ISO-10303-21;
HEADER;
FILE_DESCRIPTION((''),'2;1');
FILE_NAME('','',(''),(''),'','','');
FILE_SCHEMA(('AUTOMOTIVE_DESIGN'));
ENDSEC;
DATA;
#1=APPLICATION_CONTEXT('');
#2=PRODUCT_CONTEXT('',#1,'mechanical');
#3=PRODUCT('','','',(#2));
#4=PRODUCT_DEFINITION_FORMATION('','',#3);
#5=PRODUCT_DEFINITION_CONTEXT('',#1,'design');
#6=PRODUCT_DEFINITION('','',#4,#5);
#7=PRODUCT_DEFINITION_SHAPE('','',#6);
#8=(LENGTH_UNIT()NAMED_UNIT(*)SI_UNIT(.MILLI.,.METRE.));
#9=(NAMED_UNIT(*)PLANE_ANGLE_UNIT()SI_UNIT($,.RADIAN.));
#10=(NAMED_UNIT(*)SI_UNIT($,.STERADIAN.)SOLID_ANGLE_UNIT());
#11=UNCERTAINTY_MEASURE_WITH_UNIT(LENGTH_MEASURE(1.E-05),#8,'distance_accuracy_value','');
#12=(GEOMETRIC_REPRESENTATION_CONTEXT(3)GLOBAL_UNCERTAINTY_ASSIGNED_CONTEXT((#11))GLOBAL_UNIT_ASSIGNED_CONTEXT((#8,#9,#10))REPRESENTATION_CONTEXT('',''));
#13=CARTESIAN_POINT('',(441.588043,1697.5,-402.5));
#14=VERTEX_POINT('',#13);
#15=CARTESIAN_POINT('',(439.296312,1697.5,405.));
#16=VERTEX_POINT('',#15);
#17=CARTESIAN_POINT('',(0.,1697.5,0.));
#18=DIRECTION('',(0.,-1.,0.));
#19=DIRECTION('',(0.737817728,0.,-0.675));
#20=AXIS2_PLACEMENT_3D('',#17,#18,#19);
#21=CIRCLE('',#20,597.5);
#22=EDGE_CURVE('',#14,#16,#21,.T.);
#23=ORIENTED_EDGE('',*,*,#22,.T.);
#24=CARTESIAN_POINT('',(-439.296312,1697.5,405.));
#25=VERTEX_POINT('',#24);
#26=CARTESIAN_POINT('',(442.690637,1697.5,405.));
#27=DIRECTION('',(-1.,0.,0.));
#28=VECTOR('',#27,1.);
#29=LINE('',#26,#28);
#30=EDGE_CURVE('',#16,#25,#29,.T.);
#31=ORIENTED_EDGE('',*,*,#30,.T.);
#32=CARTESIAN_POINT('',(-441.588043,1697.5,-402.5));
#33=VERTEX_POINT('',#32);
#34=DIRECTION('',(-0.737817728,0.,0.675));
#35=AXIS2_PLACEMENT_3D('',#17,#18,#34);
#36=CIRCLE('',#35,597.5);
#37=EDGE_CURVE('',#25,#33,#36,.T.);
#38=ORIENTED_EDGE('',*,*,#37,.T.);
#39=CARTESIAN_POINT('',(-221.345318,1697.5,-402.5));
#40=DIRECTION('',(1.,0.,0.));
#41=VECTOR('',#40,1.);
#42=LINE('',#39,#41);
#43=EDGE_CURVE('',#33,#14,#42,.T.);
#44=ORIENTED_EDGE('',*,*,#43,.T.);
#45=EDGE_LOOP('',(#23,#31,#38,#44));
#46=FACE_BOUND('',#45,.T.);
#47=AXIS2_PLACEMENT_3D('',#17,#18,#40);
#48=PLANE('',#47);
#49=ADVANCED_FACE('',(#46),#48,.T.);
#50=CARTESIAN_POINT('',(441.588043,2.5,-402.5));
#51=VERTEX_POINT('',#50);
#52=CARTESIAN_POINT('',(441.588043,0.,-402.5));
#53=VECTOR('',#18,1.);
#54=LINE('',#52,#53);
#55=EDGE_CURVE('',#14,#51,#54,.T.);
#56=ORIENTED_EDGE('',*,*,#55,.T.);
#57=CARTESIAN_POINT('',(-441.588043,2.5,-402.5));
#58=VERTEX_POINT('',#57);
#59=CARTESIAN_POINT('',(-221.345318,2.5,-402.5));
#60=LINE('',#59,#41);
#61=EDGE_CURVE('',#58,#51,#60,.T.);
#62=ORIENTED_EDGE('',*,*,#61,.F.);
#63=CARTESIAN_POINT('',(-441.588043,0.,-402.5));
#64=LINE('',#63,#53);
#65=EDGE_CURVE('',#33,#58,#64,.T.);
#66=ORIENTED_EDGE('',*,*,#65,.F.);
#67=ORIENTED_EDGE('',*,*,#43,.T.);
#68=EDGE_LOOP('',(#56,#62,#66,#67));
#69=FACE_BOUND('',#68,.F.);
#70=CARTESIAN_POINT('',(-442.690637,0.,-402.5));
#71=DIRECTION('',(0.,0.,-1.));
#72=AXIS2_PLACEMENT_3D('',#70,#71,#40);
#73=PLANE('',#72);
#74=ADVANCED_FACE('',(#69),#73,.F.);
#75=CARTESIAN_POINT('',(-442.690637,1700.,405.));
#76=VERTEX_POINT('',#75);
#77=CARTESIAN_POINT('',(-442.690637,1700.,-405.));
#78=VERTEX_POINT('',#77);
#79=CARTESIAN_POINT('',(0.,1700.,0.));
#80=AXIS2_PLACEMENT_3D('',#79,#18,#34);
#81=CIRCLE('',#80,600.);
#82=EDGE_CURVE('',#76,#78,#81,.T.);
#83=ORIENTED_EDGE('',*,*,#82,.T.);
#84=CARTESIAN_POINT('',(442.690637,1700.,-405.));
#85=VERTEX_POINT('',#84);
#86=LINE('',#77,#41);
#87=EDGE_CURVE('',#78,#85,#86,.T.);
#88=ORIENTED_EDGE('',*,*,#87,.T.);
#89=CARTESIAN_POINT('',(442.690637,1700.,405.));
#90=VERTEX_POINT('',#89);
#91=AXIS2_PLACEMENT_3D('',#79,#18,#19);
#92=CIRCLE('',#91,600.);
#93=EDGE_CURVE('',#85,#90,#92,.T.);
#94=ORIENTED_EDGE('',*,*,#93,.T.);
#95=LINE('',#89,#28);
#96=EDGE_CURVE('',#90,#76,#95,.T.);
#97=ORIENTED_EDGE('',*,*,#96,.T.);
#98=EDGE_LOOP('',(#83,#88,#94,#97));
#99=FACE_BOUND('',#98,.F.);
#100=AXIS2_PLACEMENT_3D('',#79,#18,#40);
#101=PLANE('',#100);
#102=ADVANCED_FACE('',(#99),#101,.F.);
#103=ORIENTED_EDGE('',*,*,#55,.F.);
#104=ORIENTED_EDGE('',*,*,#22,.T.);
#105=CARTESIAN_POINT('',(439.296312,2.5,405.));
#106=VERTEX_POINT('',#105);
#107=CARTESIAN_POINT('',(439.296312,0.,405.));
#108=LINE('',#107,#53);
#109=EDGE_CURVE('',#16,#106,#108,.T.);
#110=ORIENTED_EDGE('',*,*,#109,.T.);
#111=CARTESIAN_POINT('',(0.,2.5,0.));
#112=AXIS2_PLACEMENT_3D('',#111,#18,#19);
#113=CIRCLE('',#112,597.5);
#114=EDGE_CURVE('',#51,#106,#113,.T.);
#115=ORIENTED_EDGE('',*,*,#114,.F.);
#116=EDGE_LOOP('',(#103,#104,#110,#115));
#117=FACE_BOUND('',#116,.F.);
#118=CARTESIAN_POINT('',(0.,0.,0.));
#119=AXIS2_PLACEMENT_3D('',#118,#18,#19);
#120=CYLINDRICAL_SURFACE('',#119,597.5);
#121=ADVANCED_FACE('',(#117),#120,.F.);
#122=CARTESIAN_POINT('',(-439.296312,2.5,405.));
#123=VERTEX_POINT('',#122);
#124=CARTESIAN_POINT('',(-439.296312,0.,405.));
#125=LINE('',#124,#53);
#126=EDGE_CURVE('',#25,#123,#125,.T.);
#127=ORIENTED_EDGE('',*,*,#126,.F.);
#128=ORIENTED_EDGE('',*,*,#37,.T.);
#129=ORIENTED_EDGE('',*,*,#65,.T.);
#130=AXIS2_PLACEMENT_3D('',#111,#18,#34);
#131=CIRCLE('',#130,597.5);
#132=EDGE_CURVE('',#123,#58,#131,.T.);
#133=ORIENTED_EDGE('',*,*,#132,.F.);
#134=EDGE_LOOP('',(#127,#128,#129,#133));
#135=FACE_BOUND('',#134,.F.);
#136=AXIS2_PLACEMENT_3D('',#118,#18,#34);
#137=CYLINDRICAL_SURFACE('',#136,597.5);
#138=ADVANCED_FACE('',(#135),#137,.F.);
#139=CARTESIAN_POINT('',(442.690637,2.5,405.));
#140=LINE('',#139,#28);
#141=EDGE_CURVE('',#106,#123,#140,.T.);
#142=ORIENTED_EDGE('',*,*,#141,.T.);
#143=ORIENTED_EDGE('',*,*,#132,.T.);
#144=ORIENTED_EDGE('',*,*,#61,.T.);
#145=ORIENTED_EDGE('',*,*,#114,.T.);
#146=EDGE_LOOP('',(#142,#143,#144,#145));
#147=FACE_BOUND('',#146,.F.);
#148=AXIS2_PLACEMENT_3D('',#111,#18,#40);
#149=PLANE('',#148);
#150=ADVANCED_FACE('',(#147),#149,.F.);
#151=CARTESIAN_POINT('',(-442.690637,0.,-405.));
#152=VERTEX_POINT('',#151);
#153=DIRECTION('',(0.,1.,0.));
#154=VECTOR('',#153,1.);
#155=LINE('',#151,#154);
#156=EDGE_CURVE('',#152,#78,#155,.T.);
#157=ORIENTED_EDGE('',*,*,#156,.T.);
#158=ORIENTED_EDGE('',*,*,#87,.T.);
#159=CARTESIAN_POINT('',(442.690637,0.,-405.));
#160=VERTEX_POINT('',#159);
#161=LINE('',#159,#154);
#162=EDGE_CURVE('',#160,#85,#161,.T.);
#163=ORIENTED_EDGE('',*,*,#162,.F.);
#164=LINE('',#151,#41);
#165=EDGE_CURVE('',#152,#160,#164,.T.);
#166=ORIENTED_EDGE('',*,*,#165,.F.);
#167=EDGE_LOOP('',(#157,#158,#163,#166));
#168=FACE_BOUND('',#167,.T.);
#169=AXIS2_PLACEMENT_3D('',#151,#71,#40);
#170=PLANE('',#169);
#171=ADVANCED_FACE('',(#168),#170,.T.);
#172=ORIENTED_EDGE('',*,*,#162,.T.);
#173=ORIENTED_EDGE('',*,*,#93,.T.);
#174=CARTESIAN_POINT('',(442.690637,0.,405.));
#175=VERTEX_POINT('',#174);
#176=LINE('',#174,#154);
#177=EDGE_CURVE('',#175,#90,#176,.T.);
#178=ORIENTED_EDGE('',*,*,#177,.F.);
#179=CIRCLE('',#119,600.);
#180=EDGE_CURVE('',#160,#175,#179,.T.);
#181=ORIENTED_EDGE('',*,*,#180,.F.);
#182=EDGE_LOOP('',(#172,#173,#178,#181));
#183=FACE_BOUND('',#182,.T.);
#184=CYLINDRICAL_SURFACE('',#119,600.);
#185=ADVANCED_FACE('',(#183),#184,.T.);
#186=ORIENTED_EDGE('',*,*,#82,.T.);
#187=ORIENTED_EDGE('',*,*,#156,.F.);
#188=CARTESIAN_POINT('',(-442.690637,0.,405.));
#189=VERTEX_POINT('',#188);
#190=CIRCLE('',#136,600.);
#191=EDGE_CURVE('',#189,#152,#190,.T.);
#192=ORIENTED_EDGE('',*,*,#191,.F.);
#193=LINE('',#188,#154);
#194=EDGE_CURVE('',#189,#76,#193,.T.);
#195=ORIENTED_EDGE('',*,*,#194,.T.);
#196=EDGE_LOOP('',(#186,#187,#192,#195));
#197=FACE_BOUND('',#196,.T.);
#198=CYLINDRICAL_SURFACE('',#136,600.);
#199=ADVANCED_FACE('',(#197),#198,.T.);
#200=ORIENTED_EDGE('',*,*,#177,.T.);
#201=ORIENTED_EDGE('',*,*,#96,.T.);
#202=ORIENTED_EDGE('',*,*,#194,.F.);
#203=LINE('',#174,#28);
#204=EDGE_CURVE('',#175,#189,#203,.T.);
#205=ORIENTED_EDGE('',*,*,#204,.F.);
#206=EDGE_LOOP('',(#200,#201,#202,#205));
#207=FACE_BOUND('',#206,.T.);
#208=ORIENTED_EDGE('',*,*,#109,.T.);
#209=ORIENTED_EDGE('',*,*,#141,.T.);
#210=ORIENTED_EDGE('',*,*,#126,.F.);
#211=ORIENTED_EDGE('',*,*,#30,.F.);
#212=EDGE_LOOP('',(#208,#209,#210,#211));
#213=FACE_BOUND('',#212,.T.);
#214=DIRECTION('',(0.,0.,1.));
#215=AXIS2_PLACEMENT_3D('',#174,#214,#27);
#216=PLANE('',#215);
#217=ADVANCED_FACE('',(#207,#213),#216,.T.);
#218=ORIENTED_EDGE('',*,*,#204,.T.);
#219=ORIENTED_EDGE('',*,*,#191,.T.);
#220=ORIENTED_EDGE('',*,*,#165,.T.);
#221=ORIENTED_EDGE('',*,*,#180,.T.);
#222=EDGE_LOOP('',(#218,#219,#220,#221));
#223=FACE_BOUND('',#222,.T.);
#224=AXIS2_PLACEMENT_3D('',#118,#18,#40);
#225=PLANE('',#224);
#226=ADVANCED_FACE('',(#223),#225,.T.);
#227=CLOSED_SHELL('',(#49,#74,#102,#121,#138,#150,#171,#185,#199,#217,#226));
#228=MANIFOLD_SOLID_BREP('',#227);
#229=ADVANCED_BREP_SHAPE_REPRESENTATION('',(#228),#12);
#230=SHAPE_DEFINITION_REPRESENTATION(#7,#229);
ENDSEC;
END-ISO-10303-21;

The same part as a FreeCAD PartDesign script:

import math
import FreeCAD as App
import Part
import Sketcher


def faces_at(feature, points):
    """Names of the faces that lie closest to the given points."""
    faces = feature.Shape.Faces
    near = lambda p: min(range(len(faces)), key=lambda i: faces[i].distToShape(Part.Vertex(*p))[0])
    return sorted({f"Face{near(p) + 1}" for p in points})

doc = App.newDocument("Part")
body = doc.addObject("PartDesign::Body", "Body")

# Sketch on XZ plane
sketch1 = body.newObject("Sketcher::SketchObject", "Sketch")
sketch1.AttachmentSupport = (doc.getObject("XZ_Plane"), [""])
sketch1.MapMode = "FlatFace"
sketch1.addGeometry([
    Part.LineSegment(App.Vector(442.690637, 405, 0), App.Vector(-442.690637, 405, 0)),
    Part.ArcOfCircle(Part.Circle(App.Vector(0, 0, 0), App.Vector(0, 0, 1), 600), math.radians(137.54585), math.radians(222.45415)),
    Part.LineSegment(App.Vector(-442.690637, -405, 0), App.Vector(442.690637, -405, 0)),
    Part.ArcOfCircle(Part.Circle(App.Vector(0, 0, 0), App.Vector(0, 0, 1), 600), math.radians(-42.45415), math.radians(42.45415)),
], False)
sketch1.addConstraint([
    Sketcher.Constraint("Coincident", 0, 2, 1, 1),
    Sketcher.Constraint("Coincident", 1, 2, 2, 1),
    Sketcher.Constraint("Coincident", 2, 2, 3, 1),
    Sketcher.Constraint("Coincident", 3, 2, 0, 1),
    Sketcher.Constraint("Horizontal", 0),
    Sketcher.Constraint("Horizontal", 2),
    Sketcher.Constraint("Coincident", 1, 3, -1, 1),
    Sketcher.Constraint("Coincident", 3, 3, -1, 1),
    Sketcher.Constraint("Equal", 1, 3),
    Sketcher.Constraint("Equal", 0, 2),
    Sketcher.Constraint("Radius", 1, 600.0),
    Sketcher.Constraint("DistanceY", -1, 1, 0, 2, 405.0),
])
pad1 = body.newObject("PartDesign::Pad", "Pad")
pad1.Profile = sketch1
pad1.Length = 1700
pad1.Reversed = True
doc.recompute()

thickness = body.newObject("PartDesign::Thickness", "Thickness")
thickness.Base = (pad1, faces_at(pad1, [(0, 850, 405)]))
thickness.Value = 2.5
thickness.Reversed = True
thickness.Join = "Arc"

doc.recompute()
